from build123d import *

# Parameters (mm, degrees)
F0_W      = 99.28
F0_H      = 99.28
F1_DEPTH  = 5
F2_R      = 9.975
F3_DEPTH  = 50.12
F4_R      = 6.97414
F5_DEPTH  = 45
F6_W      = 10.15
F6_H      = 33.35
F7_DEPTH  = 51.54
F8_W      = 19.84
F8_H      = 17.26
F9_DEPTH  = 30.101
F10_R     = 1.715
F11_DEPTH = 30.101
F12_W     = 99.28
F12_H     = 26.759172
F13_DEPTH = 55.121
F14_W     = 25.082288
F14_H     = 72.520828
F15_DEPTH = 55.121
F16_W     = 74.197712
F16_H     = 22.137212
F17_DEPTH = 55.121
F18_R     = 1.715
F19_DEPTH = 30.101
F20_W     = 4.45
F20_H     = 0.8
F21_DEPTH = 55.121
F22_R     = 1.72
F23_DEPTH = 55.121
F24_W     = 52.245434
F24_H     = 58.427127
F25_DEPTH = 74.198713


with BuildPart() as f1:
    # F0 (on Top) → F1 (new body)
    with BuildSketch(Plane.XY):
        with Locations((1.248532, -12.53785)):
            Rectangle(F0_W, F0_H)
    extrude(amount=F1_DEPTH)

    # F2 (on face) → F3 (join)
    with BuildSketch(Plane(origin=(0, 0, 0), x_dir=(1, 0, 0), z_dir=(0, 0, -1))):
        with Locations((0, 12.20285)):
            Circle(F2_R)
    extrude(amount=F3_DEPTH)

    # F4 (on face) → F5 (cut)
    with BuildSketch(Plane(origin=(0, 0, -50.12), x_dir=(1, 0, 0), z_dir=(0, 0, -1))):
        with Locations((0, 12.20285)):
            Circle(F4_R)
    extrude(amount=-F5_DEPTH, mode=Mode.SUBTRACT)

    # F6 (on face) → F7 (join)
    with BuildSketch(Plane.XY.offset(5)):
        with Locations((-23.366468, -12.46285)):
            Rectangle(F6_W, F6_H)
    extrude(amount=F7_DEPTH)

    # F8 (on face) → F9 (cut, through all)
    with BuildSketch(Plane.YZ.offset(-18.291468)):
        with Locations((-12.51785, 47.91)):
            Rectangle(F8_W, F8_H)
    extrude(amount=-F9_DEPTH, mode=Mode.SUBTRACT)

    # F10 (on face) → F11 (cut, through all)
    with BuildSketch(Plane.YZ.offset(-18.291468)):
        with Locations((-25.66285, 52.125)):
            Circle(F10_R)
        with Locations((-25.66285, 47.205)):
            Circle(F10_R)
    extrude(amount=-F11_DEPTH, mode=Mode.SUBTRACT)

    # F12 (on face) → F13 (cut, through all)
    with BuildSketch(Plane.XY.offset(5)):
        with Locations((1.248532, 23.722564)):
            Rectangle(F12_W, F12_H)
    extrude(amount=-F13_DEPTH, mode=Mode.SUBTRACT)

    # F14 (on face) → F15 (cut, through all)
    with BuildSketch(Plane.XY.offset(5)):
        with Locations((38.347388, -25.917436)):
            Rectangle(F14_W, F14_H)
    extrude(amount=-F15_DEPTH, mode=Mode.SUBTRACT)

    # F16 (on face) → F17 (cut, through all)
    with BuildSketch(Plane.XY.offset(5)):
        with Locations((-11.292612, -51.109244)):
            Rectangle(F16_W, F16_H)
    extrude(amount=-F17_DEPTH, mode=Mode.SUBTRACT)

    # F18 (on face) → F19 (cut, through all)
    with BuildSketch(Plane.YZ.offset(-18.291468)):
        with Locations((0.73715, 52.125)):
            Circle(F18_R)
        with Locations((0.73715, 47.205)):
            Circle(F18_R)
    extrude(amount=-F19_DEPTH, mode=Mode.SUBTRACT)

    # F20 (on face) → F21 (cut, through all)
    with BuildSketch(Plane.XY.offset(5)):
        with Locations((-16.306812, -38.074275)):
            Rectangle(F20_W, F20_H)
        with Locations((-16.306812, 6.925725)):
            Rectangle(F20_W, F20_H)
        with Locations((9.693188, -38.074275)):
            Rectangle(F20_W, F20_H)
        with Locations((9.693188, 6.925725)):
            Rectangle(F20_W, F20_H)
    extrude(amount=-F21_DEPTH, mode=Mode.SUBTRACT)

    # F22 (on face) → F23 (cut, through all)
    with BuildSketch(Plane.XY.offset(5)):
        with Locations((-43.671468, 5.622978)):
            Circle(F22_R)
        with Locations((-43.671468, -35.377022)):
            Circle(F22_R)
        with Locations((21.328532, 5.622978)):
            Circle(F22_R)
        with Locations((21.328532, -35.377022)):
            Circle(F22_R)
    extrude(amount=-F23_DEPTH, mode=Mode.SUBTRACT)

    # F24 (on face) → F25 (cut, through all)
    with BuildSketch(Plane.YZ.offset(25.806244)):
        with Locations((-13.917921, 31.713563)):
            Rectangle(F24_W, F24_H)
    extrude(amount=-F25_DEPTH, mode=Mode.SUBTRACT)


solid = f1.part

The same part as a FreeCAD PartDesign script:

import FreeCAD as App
import Part
import Sketcher

doc = App.newDocument("Part")
body = doc.addObject("PartDesign::Body", "Body")

# Sketch on XY plane
sketch1 = body.newObject("Sketcher::SketchObject", "Sketch")
sketch1.AttachmentSupport = (doc.getObject("XY_Plane"), [""])
sketch1.MapMode = "FlatFace"
sketch1.addGeometry([
    Part.LineSegment(App.Vector(-48, 37, 0), App.Vector(-48, -62, 0)),
    Part.LineSegment(App.Vector(-48, -62, 0), App.Vector(51, -62, 0)),
    Part.LineSegment(App.Vector(51, -62, 0), App.Vector(51, 37, 0)),
    Part.LineSegment(App.Vector(51, 37, 0), App.Vector(-48, 37, 0)),
], False)
sketch1.addConstraint([
    Sketcher.Constraint("Coincident", 0, 2, 1, 1),
    Sketcher.Constraint("Coincident", 1, 2, 2, 1),
    Sketcher.Constraint("Coincident", 2, 2, 3, 1),
    Sketcher.Constraint("Coincident", 3, 2, 0, 1),
    Sketcher.Constraint("Vertical", 0),
    Sketcher.Constraint("Horizontal", 1),
    Sketcher.Constraint("Vertical", 2),
    Sketcher.Constraint("Horizontal", 3),
    Sketcher.Constraint("Equal", 3, 0),
    Sketcher.Constraint("DistanceX", 1, 1, 1, 2, 99.28),
    Sketcher.Constraint("DistanceX", 0, 2, -1, 1, 48.391468),
    Sketcher.Constraint("DistanceY", 0, 2, -1, 1, 62.17785),
])
pad1 = body.newObject("PartDesign::Pad", "Pad")
pad1.Profile = sketch1
pad1.Length = 5

# Sketch on XY plane
sketch2 = body.newObject("Sketcher::SketchObject", "Sketch001")
sketch2.AttachmentSupport = (doc.getObject("XY_Plane"), [""])
sketch2.MapMode = "FlatFace"
sketch2.addGeometry(Part.Circle(App.Vector(0, -12, 0), App.Vector(0, 0, 1), 10), False)
sketch2.addConstraint([
    Sketcher.Constraint("PointOnObject", 0, 3, -2),
    Sketcher.Constraint("Diameter", 0, 19.95),
    Sketcher.Constraint("DistanceY", 0, 3, -1, 1, 12.20285),
])
pad2 = body.newObject("PartDesign::Pad", "Pad001")
pad2.Profile = sketch2
pad2.Length = 50.12
pad2.Reversed = True

# Sketch on XY plane
sketch3 = body.newObject("Sketcher::SketchObject", "Sketch002")
sketch3.AttachmentSupport = (doc.getObject("XY_Plane"), [""])
sketch3.MapMode = "FlatFace"
sketch3.AttachmentOffset = App.Placement(App.Vector(0, 0, -50.12), App.Rotation())
sketch3.addGeometry(Part.Circle(App.Vector(0, -12, 0), App.Vector(0, 0, 1), 7), False)
sketch3.addConstraint([
    Sketcher.Constraint("PointOnObject", 0, 3, -2),
    Sketcher.Constraint("Diameter", 0, 13.94828),
    Sketcher.Constraint("DistanceY", 0, 3, -1, 1, 12.20285),
])
pocket1 = body.newObject("PartDesign::Pocket", "Pocket")
pocket1.Profile = sketch3
pocket1.Length = 45
pocket1.Reversed = True

# Sketch on XY plane
sketch4 = body.newObject("Sketcher::SketchObject", "Sketch003")
sketch4.AttachmentSupport = (doc.getObject("XY_Plane"), [""])
sketch4.MapMode = "FlatFace"
sketch4.AttachmentOffset = App.Placement(App.Vector(0, 0, 5), App.Rotation())
sketch4.addGeometry([
    Part.LineSegment(App.Vector(-28, 4, 0), App.Vector(-28, -29, 0)),
    Part.LineSegment(App.Vector(-28, -29, 0), App.Vector(-18, -29, 0)),
    Part.LineSegment(App.Vector(-18, -29, 0), App.Vector(-18, 4, 0)),
    Part.LineSegment(App.Vector(-18, 4, 0), App.Vector(-28, 4, 0)),
], False)
sketch4.addConstraint([
    Sketcher.Constraint("Coincident", 0, 2, 1, 1),
    Sketcher.Constraint("Coincident", 1, 2, 2, 1),
    Sketcher.Constraint("Coincident", 2, 2, 3, 1),
    Sketcher.Constraint("Coincident", 3, 2, 0, 1),
    Sketcher.Constraint("Vertical", 0),
    Sketcher.Constraint("Horizontal", 1),
    Sketcher.Constraint("Vertical", 2),
    Sketcher.Constraint("Horizontal", 3),
    Sketcher.Constraint("DistanceX", 1, 1, 1, 2, 10.15),
    Sketcher.Constraint("DistanceY", 0, 2, 0, 1, 33.35),
    Sketcher.Constraint("DistanceX", 0, 2, -1, 1, 28.441468),
    Sketcher.Constraint("DistanceY", 0, 2, -1, 1, 29.13785),
])
pad3 = body.newObject("PartDesign::Pad", "Pad002")
pad3.Profile = sketch4
pad3.Length = 51.54

# Sketch on YZ plane
sketch5 = body.newObject("Sketcher::SketchObject", "Sketch004")
sketch5.AttachmentSupport = (doc.getObject("YZ_Plane"), [""])
sketch5.MapMode = "FlatFace"
sketch5.AttachmentOffset = App.Placement(App.Vector(0, 0, -18.291468), App.Rotation())
sketch5.addGeometry([
    Part.LineSegment(App.Vector(-22, 57, 0), App.Vector(-22, 39, 0)),
    Part.LineSegment(App.Vector(-22, 39, 0), App.Vector(-3, 39, 0)),
    Part.LineSegment(App.Vector(-3, 39, 0), App.Vector(-3, 57, 0)),
    Part.LineSegment(App.Vector(-3, 57, 0), App.Vector(-22, 57, 0)),
], False)
sketch5.addConstraint([
    Sketcher.Constraint("Coincident", 0, 2, 1, 1),
    Sketcher.Constraint("Coincident", 1, 2, 2, 1),
    Sketcher.Constraint("Coincident", 2, 2, 3, 1),
    Sketcher.Constraint("Coincident", 3, 2, 0, 1),
    Sketcher.Constraint("Vertical", 0),
    Sketcher.Constraint("Horizontal", 1),
    Sketcher.Constraint("Vertical", 2),
    Sketcher.Constraint("Horizontal", 3),
    Sketcher.Constraint("DistanceX", 1, 1, 1, 2, 19.84),
    Sketcher.Constraint("DistanceY", 0, 2, 0, 1, 17.26),
    Sketcher.Constraint("DistanceY", -1, 1, 0, 2, 39.28),
    Sketcher.Constraint("DistanceX", 0, 2, -1, 1, 22.43785),
])
pocket2 = body.newObject("PartDesign::Pocket", "Pocket001")
pocket2.Profile = sketch5
pocket2.Type = "ThroughAll"

# Sketch on YZ plane
sketch6 = body.newObject("Sketcher::SketchObject", "Sketch005")
sketch6.AttachmentSupport = (doc.getObject("YZ_Plane"), [""])
sketch6.MapMode = "FlatFace"
sketch6.AttachmentOffset = App.Placement(App.Vector(0, 0, -18.291468), App.Rotation())
sketch6.addGeometry([
    Part.Circle(App.Vector(-25.7, 52.1, 0), App.Vector(0, 0, 1), 1.7),
    Part.Circle(App.Vector(-25.7, 47.2, 0), App.Vector(0, 0, 1), 1.7),
], False)
sketch6.addConstraint([
    Sketcher.Constraint("Equal", 0, 1),
    Sketcher.Constraint("Vertical", 0, 3, 1, 3),
    Sketcher.Constraint("Diameter", 0, 3.43),
    Sketcher.Constraint("DistanceY", 1, 3, 0, 3, 4.92),
    Sketcher.Constraint("DistanceY", -1, 1, 0, 3, 52.125),
    Sketcher.Constraint("DistanceX", 0, 3, -1, 1, 25.66285),
])
pocket3 = body.newObject("PartDesign::Pocket", "Pocket002")
pocket3.Profile = sketch6
pocket3.Type = "ThroughAll"

# Sketch on XY plane
sketch7 = body.newObject("Sketcher::SketchObject", "Sketch006")
sketch7.AttachmentSupport = (doc.getObject("XY_Plane"), [""])
sketch7.MapMode = "FlatFace"
sketch7.AttachmentOffset = App.Placement(App.Vector(0, 0, 5), App.Rotation())
sketch7.addGeometry([
    Part.LineSegment(App.Vector(-48, 37, 0), App.Vector(-48, 10, 0)),
    Part.LineSegment(App.Vector(-48, 10, 0), App.Vector(51, 10, 0)),
    Part.LineSegment(App.Vector(51, 10, 0), App.Vector(51, 37, 0)),
    Part.LineSegment(App.Vector(51, 37, 0), App.Vector(-48, 37, 0)),
], False)
sketch7.addConstraint([
    Sketcher.Constraint("Coincident", 0, 2, 1, 1),
    Sketcher.Constraint("Coincident", 1, 2, 2, 1),
    Sketcher.Constraint("Coincident", 2, 2, 3, 1),
    Sketcher.Constraint("Coincident", 3, 2, 0, 1),
    Sketcher.Constraint("Vertical", 0),
    Sketcher.Constraint("Horizontal", 1),
    Sketcher.Constraint("Vertical", 2),
    Sketcher.Constraint("Horizontal", 3),
    Sketcher.Constraint("DistanceX", 1, 1, 1, 2, 99.28),
    Sketcher.Constraint("DistanceY", 0, 2, 0, 1, 26.759172),
    Sketcher.Constraint("DistanceX", 0, 2, -1, 1, 48.391468),
    Sketcher.Constraint("DistanceY", -1, 1, 2, 2, 37.10215),
])
pocket4 = body.newObject("PartDesign::Pocket", "Pocket003")
pocket4.Profile = sketch7
pocket4.Type = "ThroughAll"

# Sketch on XY plane
sketch8 = body.newObject("Sketcher::SketchObject", "Sketch007")
sketch8.AttachmentSupport = (doc.getObject("XY_Plane"), [""])
sketch8.MapMode = "FlatFace"
sketch8.AttachmentOffset = App.Placement(App.Vector(0, 0, 5), App.Rotation())
sketch8.addGeometry([
    Part.LineSegment(App.Vector(26, 10, 0), App.Vector(26, -62, 0)),
    Part.LineSegment(App.Vector(26, -62, 0), App.Vector(51, -62, 0)),
    Part.LineSegment(App.Vector(51, -62, 0), App.Vector(51, 10, 0)),
    Part.LineSegment(App.Vector(51, 10, 0), App.Vector(26, 10, 0)),
], False)
sketch8.addConstraint([
    Sketcher.Constraint("Coincident", 0, 2, 1, 1),
    Sketcher.Constraint("Coincident", 1, 2, 2, 1),
    Sketcher.Constraint("Coincident", 2, 2, 3, 1),
    Sketcher.Constraint("Coincident", 3, 2, 0, 1),
    Sketcher.Constraint("Vertical", 0),
    Sketcher.Constraint("Horizontal", 1),
    Sketcher.Constraint("Vertical", 2),
    Sketcher.Constraint("Horizontal", 3),
    Sketcher.Constraint("DistanceX", 1, 1, 1, 2, 25.082288),
    Sketcher.Constraint("DistanceY", 0, 2, 0, 1, 72.520828),
    Sketcher.Constraint("DistanceY", 0, 2, -1, 1, 62.17785),
    Sketcher.Constraint("DistanceX", -1, 1, 1, 2, 50.888532),
])
pocket5 = body.newObject("PartDesign::Pocket", "Pocket004")
pocket5.Profile = sketch8
pocket5.Type = "ThroughAll"

# Sketch on XY plane
sketch9 = body.newObject("Sketcher::SketchObject", "Sketch008")
sketch9.AttachmentSupport = (doc.getObject("XY_Plane"), [""])
sketch9.MapMode = "FlatFace"
sketch9.AttachmentOffset = App.Placement(App.Vector(0, 0, 5), App.Rotation())
sketch9.addGeometry([
    Part.LineSegment(App.Vector(-48, -40, 0), App.Vector(-48, -62, 0)),
    Part.LineSegment(App.Vector(-48, -62, 0), App.Vector(26, -62, 0)),
    Part.LineSegment(App.Vector(26, -62, 0), App.Vector(26, -40, 0)),
    Part.LineSegment(App.Vector(26, -40, 0), App.Vector(-48, -40, 0)),
], False)
sketch9.addConstraint([
    Sketcher.Constraint("Coincident", 0, 2, 1, 1),
    Sketcher.Constraint("Coincident", 1, 2, 2, 1),
    Sketcher.Constraint("Coincident", 2, 2, 3, 1),
    Sketcher.Constraint("Coincident", 3, 2, 0, 1),
    Sketcher.Constraint("Vertical", 0),
    Sketcher.Constraint("Horizontal", 1),
    Sketcher.Constraint("Vertical", 2),
    Sketcher.Constraint("Horizontal", 3),
    Sketcher.Constraint("DistanceX", 1, 1, 1, 2, 74.197712),
    Sketcher.Constraint("DistanceY", 0, 2, 0, 1, 22.137212),
    Sketcher.Constraint("DistanceX", 0, 2, -1, 1, 48.391468),
    Sketcher.Constraint("DistanceY", 0, 2, -1, 1, 62.17785),
])
pocket6 = body.newObject("PartDesign::Pocket", "Pocket005")
pocket6.Profile = sketch9
pocket6.Type = "ThroughAll"

# Sketch on YZ plane
sketch10 = body.newObject("Sketcher::SketchObject", "Sketch009")
sketch10.AttachmentSupport = (doc.getObject("YZ_Plane"), [""])
sketch10.MapMode = "FlatFace"
sketch10.AttachmentOffset = App.Placement(App.Vector(0, 0, -18.291468), App.Rotation())
sketch10.addGeometry([
    Part.Circle(App.Vector(0.7, 52.1, 0), App.Vector(0, 0, 1), 1.7),
    Part.Circle(App.Vector(0.7, 47.2, 0), App.Vector(0, 0, 1), 1.7),
], False)
sketch10.addConstraint([
    Sketcher.Constraint("Equal", 0, 1),
    Sketcher.Constraint("Vertical", 0, 3, 1, 3),
    Sketcher.Constraint("Diameter", 0, 3.43),
    Sketcher.Constraint("DistanceY", 1, 3, 0, 3, 4.92),
    Sketcher.Constraint("DistanceY", -1, 1, 0, 3, 52.125),
    Sketcher.Constraint("DistanceX", -1, 1, 0, 3, 0.73715),
])
pocket7 = body.newObject("PartDesign::Pocket", "Pocket006")
pocket7.Profile = sketch10
pocket7.Type = "ThroughAll"

# Sketch on XY plane
sketch11 = body.newObject("Sketcher::SketchObject", "Sketch010")
sketch11.AttachmentSupport = (doc.getObject("XY_Plane"), [""])
sketch11.MapMode = "FlatFace"
sketch11.AttachmentOffset = App.Placement(App.Vector(0, 0, 5), App.Rotation())
sketch11.addGeometry([
    Part.LineSegment(App.Vector(-18.5, -37.7, 0), App.Vector(-18.5, -38.5, 0)),  # 0
    Part.LineSegment(App.Vector(-18.5, -38.5, 0), App.Vector(-14.1, -38.5, 0)),  # 1
    Part.LineSegment(App.Vector(-14.1, -38.5, 0), App.Vector(-14.1, -37.7, 0)),  # 2
    Part.LineSegment(App.Vector(-14.1, -37.7, 0), App.Vector(-18.5, -37.7, 0)),  # 3
    Part.LineSegment(App.Vector(-18.5, 7.3, 0), App.Vector(-18.5, 6.5, 0)),  # 4
    Part.LineSegment(App.Vector(-18.5, 6.5, 0), App.Vector(-14.1, 6.5, 0)),  # 5
    Part.LineSegment(App.Vector(-14.1, 6.5, 0), App.Vector(-14.1, 7.3, 0)),  # 6
    Part.LineSegment(App.Vector(-14.1, 7.3, 0), App.Vector(-18.5, 7.3, 0)),  # 7
    Part.LineSegment(App.Vector(7.5, -37.7, 0), App.Vector(7.5, -38.5, 0)),  # 8
    Part.LineSegment(App.Vector(7.5, -38.5, 0), App.Vector(11.9, -38.5, 0)),  # 9
    Part.LineSegment(App.Vector(11.9, -38.5, 0), App.Vector(11.9, -37.7, 0)),  # 10
    Part.LineSegment(App.Vector(11.9, -37.7, 0), App.Vector(7.5, -37.7, 0)),  # 11
    Part.LineSegment(App.Vector(7.5, 7.3, 0), App.Vector(7.5, 6.5, 0)),  # 12
    Part.LineSegment(App.Vector(7.5, 6.5, 0), App.Vector(11.9, 6.5, 0)),  # 13
    Part.LineSegment(App.Vector(11.9, 6.5, 0), App.Vector(11.9, 7.3, 0)),  # 14
    Part.LineSegment(App.Vector(11.9, 7.3, 0), App.Vector(7.5, 7.3, 0)),  # 15
], False)
sketch11.addConstraint([
    Sketcher.Constraint("Coincident", 0, 2, 1, 1),
    Sketcher.Constraint("Coincident", 1, 2, 2, 1),
    Sketcher.Constraint("Coincident", 2, 2, 3, 1),
    Sketcher.Constraint("Coincident", 3, 2, 0, 1),
    Sketcher.Constraint("Coincident", 4, 2, 5, 1),
    Sketcher.Constraint("Coincident", 5, 2, 6, 1),
    Sketcher.Constraint("Coincident", 6, 2, 7, 1),
    Sketcher.Constraint("Coincident", 7, 2, 4, 1),
    Sketcher.Constraint("Coincident", 8, 2, 9, 1),
    Sketcher.Constraint("Coincident", 9, 2, 10, 1),
    Sketcher.Constraint("Coincident", 10, 2, 11, 1),
    Sketcher.Constraint("Coincident", 11, 2, 8, 1),
    Sketcher.Constraint("Coincident", 12, 2, 13, 1),
    Sketcher.Constraint("Coincident", 13, 2, 14, 1),
    Sketcher.Constraint("Coincident", 14, 2, 15, 1),
    Sketcher.Constraint("Coincident", 15, 2, 12, 1),
    Sketcher.Constraint("Vertical", 0),
    Sketcher.Constraint("Horizontal", 1),
    Sketcher.Constraint("Vertical", 2),
    Sketcher.Constraint("Horizontal", 3),
    Sketcher.Constraint("Vertical", 4),
    Sketcher.Constraint("Horizontal", 5),
    Sketcher.Constraint("Vertical", 6),
    Sketcher.Constraint("Horizontal", 7),
    Sketcher.Constraint("Vertical", 8),
    Sketcher.Constraint("Horizontal", 9),
    Sketcher.Constraint("Vertical", 10),
    Sketcher.Constraint("Horizontal", 11),
    Sketcher.Constraint("Vertical", 12),
    Sketcher.Constraint("Horizontal", 13),
    Sketcher.Constraint("Vertical", 14),
    Sketcher.Constraint("Horizontal", 15),
    Sketcher.Constraint("Horizontal", 1, 2, 8, 2),
    Sketcher.Constraint("Horizontal", 3, 2, 10, 2),
    Sketcher.Constraint("Horizontal", 5, 2, 12, 2),
    Sketcher.Constraint("Horizontal", 7, 2, 14, 2),
    Sketcher.Constraint("Vertical", 3, 2, 4, 2),
    Sketcher.Constraint("Vertical", 2, 2, 5, 2),
    Sketcher.Constraint("Vertical", 11, 2, 12, 2),
    Sketcher.Constraint("Vertical", 10, 2, 13, 2),
    Sketcher.Constraint("Equal", 7, 9),
    Sketcher.Constraint("Equal", 2, 4),
    Sketcher.Constraint("DistanceY", 0, 2, 0, 1, 0.8),
    Sketcher.Constraint("DistanceY", 0, 2, 4, 2, 45.0),
    Sketcher.Constraint("DistanceX", 0, 2, 8, 2, 26.0),
    Sketcher.Constraint("DistanceX", 1, 1, 1, 2, 4.45),
    Sketcher.Constraint("DistanceX", 0, 2, -1, 1, 18.531812),
    Sketcher.Constraint("DistanceY", 0, 2, -1, 1, 38.474275),
])
pocket8 = body.newObject("PartDesign::Pocket", "Pocket007")
pocket8.Profile = sketch11
pocket8.Type = "ThroughAll"

# Sketch on XY plane
sketch12 = body.newObject("Sketcher::SketchObject", "Sketch011")
sketch12.AttachmentSupport = (doc.getObject("XY_Plane"), [""])
sketch12.MapMode = "FlatFace"
sketch12.AttachmentOffset = App.Placement(App.Vector(0, 0, 5), App.Rotation())
sketch12.addGeometry([
    Part.Circle(App.Vector(-43.7, 5.6, 0), App.Vector(0, 0, 1), 1.7),
    Part.Circle(App.Vector(-43.7, -35.4, 0), App.Vector(0, 0, 1), 1.7),
    Part.Circle(App.Vector(21.3, 5.6, 0), App.Vector(0, 0, 1), 1.7),
    Part.Circle(App.Vector(21.3, -35.4, 0), App.Vector(0, 0, 1), 1.7),
], False)
sketch12.addConstraint([
    Sketcher.Constraint("Equal", 0, 1),
    Sketcher.Constraint("Equal", 1, 2),
    Sketcher.Constraint("Equal", 2, 3),
    Sketcher.Constraint("Horizontal", 0, 3, 2, 3),
    Sketcher.Constraint("Horizontal", 1, 3, 3, 3),
    Sketcher.Constraint("Vertical", 0, 3, 1, 3),
    Sketcher.Constraint("Vertical", 2, 3, 3, 3),
    Sketcher.Constraint("Diameter", 0, 3.44),
    Sketcher.Constraint("DistanceY", 1, 3, 0, 3, 41.0),
    Sketcher.Constraint("DistanceX", 0, 3, 2, 3, 65.0),
    Sketcher.Constraint("DistanceY", 1, 3, -1, 1, 35.377022),
    Sketcher.Constraint("DistanceX", -1, 1, 2, 3, 21.328532),
])
pocket9 = body.newObject("PartDesign::Pocket", "Pocket008")
pocket9.Profile = sketch12
pocket9.Type = "ThroughAll"

# Sketch on YZ plane
sketch13 = body.newObject("Sketcher::SketchObject", "Sketch012")
sketch13.AttachmentSupport = (doc.getObject("YZ_Plane"), [""])
sketch13.MapMode = "FlatFace"
sketch13.AttachmentOffset = App.Placement(App.Vector(0, 0, 25.806244), App.Rotation())
sketch13.addGeometry([
    Part.LineSegment(App.Vector(-40, 61, 0), App.Vector(-40, 2, 0)),
    Part.LineSegment(App.Vector(-40, 2, 0), App.Vector(12, 2, 0)),
    Part.LineSegment(App.Vector(12, 2, 0), App.Vector(12, 61, 0)),
    Part.LineSegment(App.Vector(12, 61, 0), App.Vector(-40, 61, 0)),
], False)
sketch13.addConstraint([
    Sketcher.Constraint("Coincident", 0, 2, 1, 1),
    Sketcher.Constraint("Coincident", 1, 2, 2, 1),
    Sketcher.Constraint("Coincident", 2, 2, 3, 1),
    Sketcher.Constraint("Coincident", 3, 2, 0, 1),
    Sketcher.Constraint("Vertical", 0),
    Sketcher.Constraint("Horizontal", 1),
    Sketcher.Constraint("Vertical", 2),
    Sketcher.Constraint("Horizontal", 3),
    Sketcher.Constraint("DistanceY", -1, 1, 0, 2, 2.499999),
    Sketcher.Constraint("DistanceX", 1, 1, 1, 2, 52.245434),
    Sketcher.Constraint("DistanceY", 0, 2, 0, 1, 58.427127),
    Sketcher.Constraint("DistanceX", 0, 2, -1, 1, 40.040638),
])
pocket10 = body.newObject("PartDesign::Pocket", "Pocket009")
pocket10.Profile = sketch13
pocket10.Type = "ThroughAll"

doc.recompute()
